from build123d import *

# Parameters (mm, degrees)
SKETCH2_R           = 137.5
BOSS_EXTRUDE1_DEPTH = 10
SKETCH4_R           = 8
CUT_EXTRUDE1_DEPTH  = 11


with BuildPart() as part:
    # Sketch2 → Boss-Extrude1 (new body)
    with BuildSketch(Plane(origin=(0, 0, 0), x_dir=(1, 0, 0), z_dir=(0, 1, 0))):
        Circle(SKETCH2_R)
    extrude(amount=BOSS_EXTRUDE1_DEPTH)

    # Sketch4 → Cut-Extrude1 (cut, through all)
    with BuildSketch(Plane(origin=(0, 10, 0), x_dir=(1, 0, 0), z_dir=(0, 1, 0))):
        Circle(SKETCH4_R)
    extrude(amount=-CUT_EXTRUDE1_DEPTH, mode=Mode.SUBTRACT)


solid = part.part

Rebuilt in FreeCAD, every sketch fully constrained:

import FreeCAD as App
import Part
import Sketcher

V = App.Vector
Q = App.Units.Quantity

doc = App.newDocument("Part")
body = doc.addObject("PartDesign::Body", "Body")

# Sketch on XZ plane
sketch1 = doc.addObject("Sketcher::SketchObject", "Sketch")
body.addObject(sketch1)
sketch1.AttachmentSupport = (doc.XZ_Plane, [""])
sketch1.MapMode = "FlatFace"
sketch1.addGeometry(Part.Circle(V(0, 0, 0), V(0, 0, 1), 138), False)
sketch1.addConstraint(Sketcher.Constraint("Coincident", 0, 3, -1, 1))
sketch1.addConstraint(Sketcher.Constraint("Diameter", 0, Q("275 mm")))
pad1 = doc.addObject("PartDesign::Pad", "Pad")
body.addObject(pad1)
pad1.Profile = sketch1
pad1.Length = 10
pad1.Reversed = True

# Sketch on XZ plane
sketch2 = doc.addObject("Sketcher::SketchObject", "Sketch001")
body.addObject(sketch2)
sketch2.AttachmentSupport = (doc.XZ_Plane, [""])
sketch2.MapMode = "FlatFace"
sketch2.AttachmentOffset = App.Placement(V(0, 0, -10), App.Rotation())
sketch2.addGeometry(Part.Circle(V(0, 0, 0), V(0, 0, 1), 8), False)
sketch2.addConstraint(Sketcher.Constraint("Coincident", 0, 3, -1, 1))
sketch2.addConstraint(Sketcher.Constraint("Diameter", 0, Q("16 mm")))
pocket1 = doc.addObject("PartDesign::Pocket", "Pocket")
body.addObject(pocket1)
pocket1.Profile = sketch2
pocket1.Type = "ThroughAll"
pocket1.Reversed = True

doc.recompute()
